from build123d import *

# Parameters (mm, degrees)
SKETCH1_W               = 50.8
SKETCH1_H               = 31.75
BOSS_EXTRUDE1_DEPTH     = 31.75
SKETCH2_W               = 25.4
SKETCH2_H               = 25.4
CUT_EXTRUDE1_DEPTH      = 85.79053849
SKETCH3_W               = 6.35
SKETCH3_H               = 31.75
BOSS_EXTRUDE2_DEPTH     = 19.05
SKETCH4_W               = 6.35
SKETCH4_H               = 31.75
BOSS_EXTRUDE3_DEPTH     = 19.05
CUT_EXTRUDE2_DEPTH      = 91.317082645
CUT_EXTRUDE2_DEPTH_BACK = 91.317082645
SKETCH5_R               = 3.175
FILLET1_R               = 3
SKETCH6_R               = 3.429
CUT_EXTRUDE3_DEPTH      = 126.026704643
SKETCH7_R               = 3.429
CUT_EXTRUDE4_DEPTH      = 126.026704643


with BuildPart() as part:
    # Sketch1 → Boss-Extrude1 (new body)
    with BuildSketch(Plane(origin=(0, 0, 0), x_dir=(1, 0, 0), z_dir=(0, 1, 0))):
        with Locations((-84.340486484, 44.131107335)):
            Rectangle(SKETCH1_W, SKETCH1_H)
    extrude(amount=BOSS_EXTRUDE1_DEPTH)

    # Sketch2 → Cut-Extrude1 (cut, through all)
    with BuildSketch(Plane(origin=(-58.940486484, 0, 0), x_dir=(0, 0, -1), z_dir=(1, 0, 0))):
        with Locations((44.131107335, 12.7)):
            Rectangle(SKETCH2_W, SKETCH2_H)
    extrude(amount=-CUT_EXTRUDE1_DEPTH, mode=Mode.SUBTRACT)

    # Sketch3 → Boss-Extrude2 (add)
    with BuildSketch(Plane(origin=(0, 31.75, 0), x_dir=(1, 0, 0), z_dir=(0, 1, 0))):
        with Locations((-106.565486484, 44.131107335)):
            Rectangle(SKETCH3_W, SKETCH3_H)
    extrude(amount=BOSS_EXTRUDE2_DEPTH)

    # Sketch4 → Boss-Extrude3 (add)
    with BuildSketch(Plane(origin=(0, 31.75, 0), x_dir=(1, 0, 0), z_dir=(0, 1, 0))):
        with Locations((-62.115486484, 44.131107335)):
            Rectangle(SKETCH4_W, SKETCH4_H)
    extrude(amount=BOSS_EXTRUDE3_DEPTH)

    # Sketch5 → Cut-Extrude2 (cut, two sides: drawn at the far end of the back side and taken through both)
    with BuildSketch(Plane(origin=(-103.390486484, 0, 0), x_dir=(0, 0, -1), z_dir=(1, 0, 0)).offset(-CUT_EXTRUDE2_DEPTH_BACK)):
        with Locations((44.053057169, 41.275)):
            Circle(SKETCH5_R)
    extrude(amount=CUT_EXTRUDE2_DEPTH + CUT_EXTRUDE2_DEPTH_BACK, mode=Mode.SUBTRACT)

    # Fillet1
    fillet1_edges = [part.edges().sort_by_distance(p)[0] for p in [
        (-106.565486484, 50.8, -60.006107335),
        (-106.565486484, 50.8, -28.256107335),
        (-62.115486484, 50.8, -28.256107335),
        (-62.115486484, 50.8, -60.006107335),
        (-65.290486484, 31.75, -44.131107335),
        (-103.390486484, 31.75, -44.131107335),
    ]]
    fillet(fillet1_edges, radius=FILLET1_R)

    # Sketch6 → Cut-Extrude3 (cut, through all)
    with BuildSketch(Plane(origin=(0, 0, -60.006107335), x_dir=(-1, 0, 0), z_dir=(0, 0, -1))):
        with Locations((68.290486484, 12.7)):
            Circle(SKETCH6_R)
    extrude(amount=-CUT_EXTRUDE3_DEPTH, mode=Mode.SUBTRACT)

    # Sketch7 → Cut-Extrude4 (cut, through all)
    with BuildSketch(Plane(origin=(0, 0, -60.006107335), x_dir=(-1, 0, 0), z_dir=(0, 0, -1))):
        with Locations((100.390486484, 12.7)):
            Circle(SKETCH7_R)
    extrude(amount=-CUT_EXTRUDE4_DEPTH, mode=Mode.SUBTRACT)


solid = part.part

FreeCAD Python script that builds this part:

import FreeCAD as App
import Part
import Sketcher
from FreeCAD import Vector
Q = App.Units.Quantity


def edges_at(feature, points):
    """Names of the edges that pass closest to the given points."""
    edges = feature.Shape.Edges
    near = lambda p: min(range(len(edges)), key=lambda i: edges[i].distToShape(Part.Vertex(*p))[0])
    return sorted({f"Edge{near(p) + 1}" for p in points})

doc = App.newDocument("Part")
body = doc.addObject("PartDesign::Body", "Body")

# Sketch on XZ plane
sketch1 = body.newObject("Sketcher::SketchObject", "Sketch")
sketch1.AttachmentSupport = (doc.getObject("XZ_Plane"), [""])
sketch1.MapMode = "FlatFace"
sketch1.addGeometry([
    Part.LineSegment(Vector(-110, -60, 0), Vector(-110, -28, 0)),
    Part.LineSegment(Vector(-110, -28, 0), Vector(-59, -28, 0)),
    Part.LineSegment(Vector(-59, -28, 0), Vector(-59, -60, 0)),
    Part.LineSegment(Vector(-59, -60, 0), Vector(-110, -60, 0)),
], False)
sketch1.addConstraint([
    Sketcher.Constraint("Coincident", 0, 2, 1, 1),
    Sketcher.Constraint("Coincident", 1, 2, 2, 1),
    Sketcher.Constraint("Coincident", 2, 2, 3, 1),
    Sketcher.Constraint("Coincident", 3, 2, 0, 1),
    Sketcher.Constraint("Vertical", 0),
    Sketcher.Constraint("Horizontal", 1),
    Sketcher.Constraint("Vertical", 2),
    Sketcher.Constraint("Horizontal", 3),
    Sketcher.Constraint("DistanceX", 1, 1, 1, 2, Q("2 in")),
    Sketcher.Constraint("DistanceY", 0, 1, 0, 2, Q("1.25 in")),
    Sketcher.Constraint("DistanceX", 0, 2, -1, 1, 109.740486),
    Sketcher.Constraint("DistanceY", 0, 2, -1, 1, 28.256107),
])
pad1 = body.newObject("PartDesign::Pad", "Pad")
pad1.Profile = sketch1
pad1.Length = Q("1.25 in")
pad1.Reversed = True

# Sketch on YZ plane
sketch2 = body.newObject("Sketcher::SketchObject", "Sketch001")
sketch2.AttachmentSupport = (doc.getObject("YZ_Plane"), [""])
sketch2.MapMode = "FlatFace"
sketch2.AttachmentOffset = App.Placement(Vector(0, 0, -58.940486), App.Rotation())
sketch2.addGeometry([
    Part.LineSegment(Vector(25, -31, 0), Vector(0, -31, 0)),
    Part.LineSegment(Vector(0, -31, 0), Vector(0, -57, 0)),
    Part.LineSegment(Vector(0, -57, 0), Vector(25, -57, 0)),
    Part.LineSegment(Vector(25, -57, 0), Vector(25, -31, 0)),
], False)
sketch2.addConstraint([
    Sketcher.Constraint("Coincident", 0, 2, 1, 1),
    Sketcher.Constraint("Coincident", 1, 2, 2, 1),
    Sketcher.Constraint("Coincident", 2, 2, 3, 1),
    Sketcher.Constraint("Coincident", 3, 2, 0, 1),
    Sketcher.Constraint("Horizontal", 0),
    Sketcher.Constraint("Vertical", 1),
    Sketcher.Constraint("Horizontal", 2),
    Sketcher.Constraint("Vertical", 3),
    Sketcher.Constraint("PointOnObject", 0, 2, -2),
    Sketcher.Constraint("Equal", 2, 1),
    Sketcher.Constraint("DistanceX", 0, 2, 0, 1, Q("1 in")),
    Sketcher.Constraint("DistanceY", 0, 2, -1, 1, 31.431107),
])
pocket1 = body.newObject("PartDesign::Pocket", "Pocket")
pocket1.Profile = sketch2
pocket1.Type = "ThroughAll"

# Sketch on XZ plane
sketch3 = body.newObject("Sketcher::SketchObject", "Sketch002")
sketch3.AttachmentSupport = (doc.getObject("XZ_Plane"), [""])
sketch3.MapMode = "FlatFace"
sketch3.AttachmentOffset = App.Placement(Vector(0, 0, -1.25 * 25.4), App.Rotation())
sketch3.addGeometry([
    Part.LineSegment(Vector(-110, -60, 0), Vector(-110, -28, 0)),
    Part.LineSegment(Vector(-110, -28, 0), Vector(-103, -28, 0)),
    Part.LineSegment(Vector(-103, -28, 0), Vector(-103, -60, 0)),
    Part.LineSegment(Vector(-103, -60, 0), Vector(-110, -60, 0)),
], False)
sketch3.addConstraint([
    Sketcher.Constraint("Coincident", 0, 2, 1, 1),
    Sketcher.Constraint("Coincident", 1, 2, 2, 1),
    Sketcher.Constraint("Coincident", 2, 2, 3, 1),
    Sketcher.Constraint("Coincident", 3, 2, 0, 1),
    Sketcher.Constraint("Vertical", 0),
    Sketcher.Constraint("Horizontal", 1),
    Sketcher.Constraint("Vertical", 2),
    Sketcher.Constraint("Horizontal", 3),
    Sketcher.Constraint("DistanceX", 1, 1, 1, 2, Q("0.25 in")),
    Sketcher.Constraint("DistanceY", 0, 1, 0, 2, Q("1.25 in")),
    Sketcher.Constraint("DistanceX", 0, 2, -1, 1, 109.740486),
    Sketcher.Constraint("DistanceY", 0, 2, -1, 1, 28.256107),
])
pad2 = body.newObject("PartDesign::Pad", "Pad001")
pad2.Profile = sketch3
pad2.Length = Q("0.75 in")
pad2.Reversed = True

# Sketch on XZ plane
sketch4 = body.newObject("Sketcher::SketchObject", "Sketch003")
sketch4.AttachmentSupport = (doc.getObject("XZ_Plane"), [""])
sketch4.MapMode = "FlatFace"
sketch4.AttachmentOffset = App.Placement(Vector(0, 0, -1.25 * 25.4), App.Rotation())
sketch4.addGeometry([
    Part.LineSegment(Vector(-65, -60, 0), Vector(-65, -28, 0)),
    Part.LineSegment(Vector(-65, -28, 0), Vector(-59, -28, 0)),
    Part.LineSegment(Vector(-59, -28, 0), Vector(-59, -60, 0)),
    Part.LineSegment(Vector(-59, -60, 0), Vector(-65, -60, 0)),
], False)
sketch4.addConstraint([
    Sketcher.Constraint("Coincident", 0, 2, 1, 1),
    Sketcher.Constraint("Coincident", 1, 2, 2, 1),
    Sketcher.Constraint("Coincident", 2, 2, 3, 1),
    Sketcher.Constraint("Coincident", 3, 2, 0, 1),
    Sketcher.Constraint("Vertical", 0),
    Sketcher.Constraint("Horizontal", 1),
    Sketcher.Constraint("Vertical", 2),
    Sketcher.Constraint("Horizontal", 3),
    Sketcher.Constraint("DistanceX", 1, 1, 1, 2, Q("0.25 in")),
    Sketcher.Constraint("DistanceY", 0, 1, 0, 2, Q("1.25 in")),
    Sketcher.Constraint("DistanceX", 0, 2, -1, 1, 65.290486),
    Sketcher.Constraint("DistanceY", 0, 2, -1, 1, 28.256107),
])
pad3 = body.newObject("PartDesign::Pad", "Pad002")
pad3.Profile = sketch4
pad3.Length = Q("0.75 in")
pad3.Reversed = True

# Sketch on YZ plane
sketch5 = body.newObject("Sketcher::SketchObject", "Sketch004")
sketch5.AttachmentSupport = (doc.getObject("YZ_Plane"), [""])
sketch5.MapMode = "FlatFace"
sketch5.AttachmentOffset = App.Placement(Vector(0, 0, -103.390486), App.Rotation())
sketch5.addGeometry(Part.Circle(Vector(41.3, -44.1, 0), Vector(0, 0, 1), 3.2), False)
sketch5.addConstraint([
    Sketcher.Constraint("Diameter", 0, Q("0.25 in")),
    Sketcher.Constraint("DistanceX", -1, 1, 0, 3, Q("1.625 in")),
    Sketcher.Constraint("DistanceY", 0, 3, -1, 1, 44.053057),
])
pocket2 = body.newObject("PartDesign::Pocket", "Pocket001")
pocket2.Profile = sketch5
pocket2.Type = "ThroughAll"
pocket2.Midplane = True
doc.recompute()

fillet = body.newObject("PartDesign::Fillet", "Fillet")
fillet.Base = (pocket2, edges_at(pocket2, [
    (-106.565, 50.8, -60.006),
    (-106.565, 50.8, -28.256),
    (-62.115, 50.8, -28.256),
    (-62.115, 50.8, -60.006),
    (-65.29, 31.75, -44.131),
    (-103.39, 31.75, -44.131),
]))
fillet.Radius = 3

# Sketch on XY plane
sketch6 = body.newObject("Sketcher::SketchObject", "Sketch005")
sketch6.AttachmentSupport = (doc.getObject("XY_Plane"), [""])
sketch6.MapMode = "FlatFace"
sketch6.AttachmentOffset = App.Placement(Vector(0, 0, -60.006107), App.Rotation())
sketch6.addGeometry(Part.Circle(Vector(-68.3, 12.7, 0), Vector(0, 0, 1), 3.4), False)
sketch6.addConstraint([
    Sketcher.Constraint("Diameter", 0, Q("0.27 in")),
    Sketcher.Constraint("DistanceY", -1, 1, 0, 3, Q("0.5 in")),
    Sketcher.Constraint("DistanceX", 0, 3, -1, 1, 68.290486),
])
pocket3 = body.newObject("PartDesign::Pocket", "Pocket002")
pocket3.Profile = sketch6
pocket3.Type = "ThroughAll"
pocket3.Reversed = True

# Sketch on XY plane
sketch7 = body.newObject("Sketcher::SketchObject", "Sketch006")
sketch7.AttachmentSupport = (doc.getObject("XY_Plane"), [""])
sketch7.MapMode = "FlatFace"
sketch7.AttachmentOffset = App.Placement(Vector(0, 0, -60.006107), App.Rotation())
sketch7.addGeometry(Part.Circle(Vector(-100.4, 12.7, 0), Vector(0, 0, 1), 3.4), False)
sketch7.addConstraint([
    Sketcher.Constraint("Diameter", 0, Q("0.27 in")),
    Sketcher.Constraint("DistanceY", -1, 1, 0, 3, Q("0.5 in")),
    Sketcher.Constraint("DistanceX", 0, 3, -1, 1, 100.390486),
])
pocket4 = body.newObject("PartDesign::Pocket", "Pocket003")
pocket4.Profile = sketch7
pocket4.Type = "ThroughAll"
pocket4.Reversed = True

doc.recompute()
